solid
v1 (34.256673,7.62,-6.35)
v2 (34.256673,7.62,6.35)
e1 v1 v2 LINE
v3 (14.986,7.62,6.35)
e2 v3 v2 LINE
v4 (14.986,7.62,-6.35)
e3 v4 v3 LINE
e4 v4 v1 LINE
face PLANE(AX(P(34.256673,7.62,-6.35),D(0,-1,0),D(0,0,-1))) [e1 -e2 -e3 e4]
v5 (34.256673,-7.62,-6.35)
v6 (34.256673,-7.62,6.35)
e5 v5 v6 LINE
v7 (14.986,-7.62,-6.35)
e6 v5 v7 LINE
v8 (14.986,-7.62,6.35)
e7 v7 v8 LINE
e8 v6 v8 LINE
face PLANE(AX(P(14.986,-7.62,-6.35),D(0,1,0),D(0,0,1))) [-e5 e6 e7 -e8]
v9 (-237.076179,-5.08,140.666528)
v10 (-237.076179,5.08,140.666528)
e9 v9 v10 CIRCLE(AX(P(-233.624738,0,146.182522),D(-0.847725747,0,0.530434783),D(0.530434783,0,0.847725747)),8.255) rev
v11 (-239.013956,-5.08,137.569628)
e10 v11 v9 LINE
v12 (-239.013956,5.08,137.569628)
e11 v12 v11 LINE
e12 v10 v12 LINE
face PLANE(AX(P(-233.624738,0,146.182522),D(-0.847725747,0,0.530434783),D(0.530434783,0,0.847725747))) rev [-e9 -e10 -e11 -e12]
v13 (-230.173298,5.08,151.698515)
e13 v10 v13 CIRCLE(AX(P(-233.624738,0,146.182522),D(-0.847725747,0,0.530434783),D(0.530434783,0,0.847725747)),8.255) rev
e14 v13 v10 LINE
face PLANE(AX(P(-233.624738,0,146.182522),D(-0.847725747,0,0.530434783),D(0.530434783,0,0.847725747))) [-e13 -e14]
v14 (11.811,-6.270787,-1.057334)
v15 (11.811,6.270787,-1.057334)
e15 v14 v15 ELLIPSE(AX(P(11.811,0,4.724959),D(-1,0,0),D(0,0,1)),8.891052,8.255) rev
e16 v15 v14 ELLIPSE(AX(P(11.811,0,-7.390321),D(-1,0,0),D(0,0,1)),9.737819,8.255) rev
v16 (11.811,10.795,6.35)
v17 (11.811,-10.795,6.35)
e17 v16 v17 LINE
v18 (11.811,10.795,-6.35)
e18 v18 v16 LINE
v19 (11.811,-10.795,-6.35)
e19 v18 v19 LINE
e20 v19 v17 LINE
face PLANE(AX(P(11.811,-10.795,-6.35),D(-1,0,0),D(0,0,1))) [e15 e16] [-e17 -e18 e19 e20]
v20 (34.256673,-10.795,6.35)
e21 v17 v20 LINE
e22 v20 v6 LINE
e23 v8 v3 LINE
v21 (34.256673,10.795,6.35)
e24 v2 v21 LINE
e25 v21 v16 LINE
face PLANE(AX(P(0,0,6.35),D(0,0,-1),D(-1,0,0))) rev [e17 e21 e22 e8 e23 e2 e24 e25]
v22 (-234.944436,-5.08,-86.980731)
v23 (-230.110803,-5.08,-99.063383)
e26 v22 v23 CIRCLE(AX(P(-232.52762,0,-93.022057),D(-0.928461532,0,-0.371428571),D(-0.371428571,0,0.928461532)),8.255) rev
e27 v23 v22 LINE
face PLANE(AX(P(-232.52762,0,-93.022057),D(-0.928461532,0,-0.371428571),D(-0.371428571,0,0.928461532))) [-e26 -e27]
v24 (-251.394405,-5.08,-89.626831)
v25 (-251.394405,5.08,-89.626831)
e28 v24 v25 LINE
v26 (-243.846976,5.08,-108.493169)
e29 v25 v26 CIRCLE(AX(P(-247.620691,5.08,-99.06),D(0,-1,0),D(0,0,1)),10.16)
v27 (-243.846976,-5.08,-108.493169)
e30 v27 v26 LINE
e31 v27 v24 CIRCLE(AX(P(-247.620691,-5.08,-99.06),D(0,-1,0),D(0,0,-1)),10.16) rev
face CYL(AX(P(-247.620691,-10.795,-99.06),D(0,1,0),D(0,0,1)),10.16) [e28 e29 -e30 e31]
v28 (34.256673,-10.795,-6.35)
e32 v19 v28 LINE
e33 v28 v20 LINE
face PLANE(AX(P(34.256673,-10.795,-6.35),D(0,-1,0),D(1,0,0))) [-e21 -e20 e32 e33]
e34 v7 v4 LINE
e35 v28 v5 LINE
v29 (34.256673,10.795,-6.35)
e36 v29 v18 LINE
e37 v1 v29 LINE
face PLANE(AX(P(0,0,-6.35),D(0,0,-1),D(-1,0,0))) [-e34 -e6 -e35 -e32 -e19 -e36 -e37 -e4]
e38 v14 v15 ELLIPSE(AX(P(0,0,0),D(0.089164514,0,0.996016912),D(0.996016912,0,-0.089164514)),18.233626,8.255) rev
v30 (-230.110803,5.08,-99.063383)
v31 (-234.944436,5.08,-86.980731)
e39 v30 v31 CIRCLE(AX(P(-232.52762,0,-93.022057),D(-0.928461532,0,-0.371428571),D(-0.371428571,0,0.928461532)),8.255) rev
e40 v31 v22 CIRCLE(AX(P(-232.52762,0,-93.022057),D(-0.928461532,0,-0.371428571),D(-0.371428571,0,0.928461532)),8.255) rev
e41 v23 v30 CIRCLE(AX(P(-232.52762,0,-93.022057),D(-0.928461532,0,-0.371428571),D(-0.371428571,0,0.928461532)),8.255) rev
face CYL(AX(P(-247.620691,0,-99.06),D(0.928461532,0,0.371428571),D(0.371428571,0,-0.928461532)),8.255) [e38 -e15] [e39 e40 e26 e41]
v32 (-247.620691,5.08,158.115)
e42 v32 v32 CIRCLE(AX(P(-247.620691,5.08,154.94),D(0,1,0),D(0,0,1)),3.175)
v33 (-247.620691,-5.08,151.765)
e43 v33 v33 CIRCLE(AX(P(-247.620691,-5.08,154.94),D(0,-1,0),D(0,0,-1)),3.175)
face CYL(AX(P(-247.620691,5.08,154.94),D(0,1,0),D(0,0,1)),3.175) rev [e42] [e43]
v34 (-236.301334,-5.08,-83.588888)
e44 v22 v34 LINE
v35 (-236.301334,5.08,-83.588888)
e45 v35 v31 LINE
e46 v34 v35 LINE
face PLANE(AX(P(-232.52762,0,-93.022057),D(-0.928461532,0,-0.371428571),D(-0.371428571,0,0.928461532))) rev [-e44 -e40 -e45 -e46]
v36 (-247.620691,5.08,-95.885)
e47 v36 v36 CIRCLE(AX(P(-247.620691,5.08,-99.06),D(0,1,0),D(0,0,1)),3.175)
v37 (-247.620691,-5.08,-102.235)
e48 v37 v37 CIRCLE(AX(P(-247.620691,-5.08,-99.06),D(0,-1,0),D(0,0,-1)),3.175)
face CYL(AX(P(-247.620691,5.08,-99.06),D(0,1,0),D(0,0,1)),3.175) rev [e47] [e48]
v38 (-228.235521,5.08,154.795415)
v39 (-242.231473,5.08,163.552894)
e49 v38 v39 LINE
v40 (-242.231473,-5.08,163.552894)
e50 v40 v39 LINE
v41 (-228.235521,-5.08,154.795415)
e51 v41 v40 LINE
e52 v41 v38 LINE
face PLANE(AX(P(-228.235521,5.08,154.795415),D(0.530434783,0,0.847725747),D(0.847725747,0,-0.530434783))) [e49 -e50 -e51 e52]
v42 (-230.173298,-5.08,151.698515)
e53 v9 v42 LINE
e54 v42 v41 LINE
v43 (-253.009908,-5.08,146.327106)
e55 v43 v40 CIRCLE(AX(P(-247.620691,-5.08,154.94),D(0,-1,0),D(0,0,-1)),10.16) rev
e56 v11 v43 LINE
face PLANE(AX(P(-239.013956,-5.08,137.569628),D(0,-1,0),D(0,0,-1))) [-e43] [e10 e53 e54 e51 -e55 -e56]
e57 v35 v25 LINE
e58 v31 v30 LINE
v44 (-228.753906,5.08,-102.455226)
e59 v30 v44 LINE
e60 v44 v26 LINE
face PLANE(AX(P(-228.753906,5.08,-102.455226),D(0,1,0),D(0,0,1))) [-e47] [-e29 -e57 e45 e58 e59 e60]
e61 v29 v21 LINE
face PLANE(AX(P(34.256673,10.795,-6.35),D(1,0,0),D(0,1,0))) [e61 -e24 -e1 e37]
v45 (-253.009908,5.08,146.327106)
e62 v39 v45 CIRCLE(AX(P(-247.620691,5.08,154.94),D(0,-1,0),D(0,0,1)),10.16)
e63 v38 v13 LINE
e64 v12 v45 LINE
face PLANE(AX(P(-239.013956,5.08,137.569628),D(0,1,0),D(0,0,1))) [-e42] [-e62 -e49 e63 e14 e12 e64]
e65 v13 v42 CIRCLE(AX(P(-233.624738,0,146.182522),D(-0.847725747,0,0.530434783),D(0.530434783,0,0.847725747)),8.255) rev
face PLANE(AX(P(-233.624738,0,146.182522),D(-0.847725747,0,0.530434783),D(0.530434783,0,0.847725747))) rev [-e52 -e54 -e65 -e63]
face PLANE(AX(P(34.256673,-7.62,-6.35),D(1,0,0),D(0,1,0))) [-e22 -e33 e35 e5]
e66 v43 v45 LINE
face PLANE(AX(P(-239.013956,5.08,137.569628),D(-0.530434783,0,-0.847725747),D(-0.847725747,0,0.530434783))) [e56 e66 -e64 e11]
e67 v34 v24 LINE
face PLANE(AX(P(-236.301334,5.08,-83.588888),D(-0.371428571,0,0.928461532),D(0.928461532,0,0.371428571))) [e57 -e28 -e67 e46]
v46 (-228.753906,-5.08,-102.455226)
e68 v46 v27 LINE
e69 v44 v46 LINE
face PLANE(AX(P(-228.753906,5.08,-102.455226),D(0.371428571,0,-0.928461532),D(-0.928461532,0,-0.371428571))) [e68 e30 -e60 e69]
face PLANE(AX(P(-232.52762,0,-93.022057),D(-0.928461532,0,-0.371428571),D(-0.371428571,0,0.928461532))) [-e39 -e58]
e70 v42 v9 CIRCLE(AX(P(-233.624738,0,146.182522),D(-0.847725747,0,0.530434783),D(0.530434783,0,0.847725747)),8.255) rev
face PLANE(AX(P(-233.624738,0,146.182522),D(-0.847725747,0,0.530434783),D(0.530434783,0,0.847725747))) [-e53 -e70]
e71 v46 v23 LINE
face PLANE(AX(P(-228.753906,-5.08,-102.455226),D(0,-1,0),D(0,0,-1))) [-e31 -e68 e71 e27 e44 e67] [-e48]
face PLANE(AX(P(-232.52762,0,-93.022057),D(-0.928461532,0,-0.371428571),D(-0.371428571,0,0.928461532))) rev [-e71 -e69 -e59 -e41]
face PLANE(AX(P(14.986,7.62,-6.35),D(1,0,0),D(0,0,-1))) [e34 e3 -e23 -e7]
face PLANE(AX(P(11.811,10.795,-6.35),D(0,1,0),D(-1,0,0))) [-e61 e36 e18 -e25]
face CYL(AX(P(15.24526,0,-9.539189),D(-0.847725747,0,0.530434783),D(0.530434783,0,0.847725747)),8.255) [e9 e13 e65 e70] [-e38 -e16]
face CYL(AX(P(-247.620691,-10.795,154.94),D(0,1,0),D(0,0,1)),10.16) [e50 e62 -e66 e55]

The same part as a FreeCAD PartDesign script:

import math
import FreeCAD as App
import Part
import Sketcher
from FreeCAD import Vector
Q = App.Units.Quantity

doc = App.newDocument("Part")
body = doc.addObject("PartDesign::Body", "Body")

# Sketch on an angled plane
sketch1 = doc.addObject("Sketcher::SketchObject", "Sketch")
body.addObject(sketch1)
sketch1.Placement = App.Placement(Vector(-247.620691, 0, 154.94), App.Rotation(Vector(0.530434783, 0, 0.847725747), Vector(0, 1.000000001, 0), Vector(-0.847725747, 0, 0.530434783), "ZXY"))
sketch1.addGeometry(Part.Circle(Vector(0, 0, 0), Vector(0, 0, 1), 8), False)
sketch1.addConstraint([
    Sketcher.Constraint("Coincident", 0, 3, -1, 1),
    Sketcher.Constraint("Diameter", 0, Q("0.65 in")),
])

# Sketch on XZ plane
sketch2 = doc.addObject("Sketcher::SketchObject", "Sketch001")
body.addObject(sketch2)
sketch2.AttachmentSupport = (doc.XZ_Plane, [""])
sketch2.MapMode = "FlatFace"
sketch2.addGeometry([
    Part.LineSegment(Vector(-248, -99, 0), Vector(0, 0, 0)),
    Part.LineSegment(Vector(0, 0, 0), Vector(-248, 155, 0)),
], False)
sketch2.addConstraint([
    Sketcher.Constraint("Coincident", 0, 2, 1, 1),
    Sketcher.Constraint("Coincident", 0, 2, -1, 1),
    Sketcher.Constraint("Vertical", 0, 1, 1, 2),
    Sketcher.Constraint("DistanceY", 0, 1, 1, 2, Q("10 in")),
    Sketcher.Constraint("Distance", 0, Q("10.5 in")),
    Sketcher.Constraint("Distance", 1, Q("11.5 in")),
])
doc.recompute()

additivepipe = doc.addObject("PartDesign::AdditivePipe", "AdditivePipe")
body.addObject(additivepipe)
additivepipe.Profile = sketch1
additivepipe.Spine = (sketch2, ["Edge1", "Edge2"])
additivepipe.Transition = "Right corner"

# Sketch on XY plane
sketch3 = doc.addObject("Sketcher::SketchObject", "Sketch002")
body.addObject(sketch3)
sketch3.AttachmentSupport = (doc.XY_Plane, [""])
sketch3.MapMode = "FlatFace"
sketch3.addGeometry([
    Part.LineSegment(Vector(11.8, -10.8, 0), Vector(34.3, -10.8, 0)),  # 0
    Part.LineSegment(Vector(34.3, -10.8, 0), Vector(34.3, -7.6, 0)),  # 1
    Part.LineSegment(Vector(34.3, -7.6, 0), Vector(15, -7.6, 0)),  # 2
    Part.LineSegment(Vector(15, -7.6, 0), Vector(15, 7.6, 0)),  # 3
    Part.LineSegment(Vector(15, 7.6, 0), Vector(34.3, 7.6, 0)),  # 4
    Part.LineSegment(Vector(34.3, 7.6, 0), Vector(34.3, 10.8, 0)),  # 5
    Part.LineSegment(Vector(34.3, 10.8, 0), Vector(11.8, 10.8, 0)),  # 6
    Part.LineSegment(Vector(11.8, 10.8, 0), Vector(11.8, -10.8, 0)),  # 7
], False)
sketch3.addConstraint([
    Sketcher.Constraint("Coincident", 0, 2, 1, 1),
    Sketcher.Constraint("Coincident", 1, 2, 2, 1),
    Sketcher.Constraint("Coincident", 2, 2, 3, 1),
    Sketcher.Constraint("Coincident", 3, 2, 4, 1),
    Sketcher.Constraint("Coincident", 4, 2, 5, 1),
    Sketcher.Constraint("Coincident", 5, 2, 6, 1),
    Sketcher.Constraint("Coincident", 6, 2, 7, 1),
    Sketcher.Constraint("Coincident", 7, 2, 0, 1),
    Sketcher.Constraint("Horizontal", 0),
    Sketcher.Constraint("Vertical", 1),
    Sketcher.Constraint("Horizontal", 2),
    Sketcher.Constraint("Vertical", 3),
    Sketcher.Constraint("Horizontal", 4),
    Sketcher.Constraint("Vertical", 5),
    Sketcher.Constraint("Horizontal", 6),
    Sketcher.Constraint("Vertical", 7),
    Sketcher.Constraint("Symmetric", 1, 2, 4, 2, -1),
    Sketcher.Constraint("Equal", 1, 5),
    Sketcher.Constraint("DistanceY", 3, 1, 3, 2, Q("0.6 in")),
    Sketcher.Constraint("DistanceY", 7, 2, 7, 1, Q("0.85 in")),
    Sketcher.Constraint("DistanceX", -1, 1, 2, 2, Q("0.59 in")),
    Sketcher.Constraint("DistanceX", -1, 1, 6, 2, Q("0.465 in")),
    Sketcher.Constraint("DistanceX", 0, 1, 0, 2, Q("22.445673 mm")),
])
pad1 = doc.addObject("PartDesign::Pad", "Pad")
body.addObject(pad1)
pad1.Profile = sketch3
pad1.Type = "TwoLengths"
pad1.Length = Q("0.25 in")
pad1.Length2 = Q("0.25 in")

# Sketch on an angled plane
sketch4 = doc.addObject("Sketcher::SketchObject", "Sketch003")
body.addObject(sketch4)
sketch4.Placement = App.Placement(Vector(-247.620691, 0, 154.94), App.Rotation(Vector(0.530434783, 0, 0.847725747), Vector(0, 1.000000001, 0), Vector(-0.847725747, 0, 0.530434783), "ZXY"))
sketch4.addGeometry([
    Part.LineSegment(Vector(-10, 5, 0), Vector(-10, -5, 0)),
    Part.LineSegment(Vector(-10, -5, 0), Vector(10, -5, 0)),
    Part.LineSegment(Vector(10, -5, 0), Vector(10, 5, 0)),
    Part.LineSegment(Vector(10, 5, 0), Vector(-10, 5, 0)),
], False)
sketch4.addConstraint([
    Sketcher.Constraint("Coincident", 0, 2, 1, 1),
    Sketcher.Constraint("Coincident", 1, 2, 2, 1),
    Sketcher.Constraint("Coincident", 2, 2, 3, 1),
    Sketcher.Constraint("Coincident", 3, 2, 0, 1),
    Sketcher.Constraint("Vertical", 0),
    Sketcher.Constraint("Horizontal", 1),
    Sketcher.Constraint("Vertical", 2),
    Sketcher.Constraint("Horizontal", 3),
    Sketcher.Constraint("Symmetric", 0, 2, 2, 2, -1, 1),
    Sketcher.Constraint("DistanceX", 1, 1, 1, 2, Q("0.8 in")),
    Sketcher.Constraint("DistanceY", 0, 2, 0, 1, Q("0.4 in")),
])
pad2 = doc.addObject("PartDesign::Pad", "Pad001")
body.addObject(pad2)
pad2.Profile = sketch4
pad2.Type = "TwoLengths"
pad2.Length = Q("0.4 in")
pad2.Length2 = Q("0.65 in")

# Sketch on an angled plane
sketch5 = doc.addObject("Sketcher::SketchObject", "Sketch004")
body.addObject(sketch5)
sketch5.Placement = App.Placement(Vector(-247.620691, 0, -99.06), App.Rotation(Vector(-0.371428571, 0, 0.928461532), Vector(0, 1, 0), Vector(-0.928461532, 0, -0.371428571), "ZXY"))
sketch5.addGeometry([
    Part.LineSegment(Vector(-10, 5, 0), Vector(-10, -5, 0)),
    Part.LineSegment(Vector(-10, -5, 0), Vector(10, -5, 0)),
    Part.LineSegment(Vector(10, -5, 0), Vector(10, 5, 0)),
    Part.LineSegment(Vector(10, 5, 0), Vector(-10, 5, 0)),
], False)
sketch5.addConstraint([
    Sketcher.Constraint("Coincident", 0, 2, 1, 1),
    Sketcher.Constraint("Coincident", 1, 2, 2, 1),
    Sketcher.Constraint("Coincident", 2, 2, 3, 1),
    Sketcher.Constraint("Coincident", 3, 2, 0, 1),
    Sketcher.Constraint("Vertical", 0),
    Sketcher.Constraint("Horizontal", 1),
    Sketcher.Constraint("Vertical", 2),
    Sketcher.Constraint("Horizontal", 3),
    Sketcher.Constraint("Symmetric", 0, 2, 2, 2, -1, 1),
    Sketcher.Constraint("DistanceX", 1, 1, 1, 2, Q("0.8 in")),
    Sketcher.Constraint("DistanceY", 0, 2, 0, 1, Q("0.4 in")),
])
pad3 = doc.addObject("PartDesign::Pad", "Pad002")
body.addObject(pad3)
pad3.Profile = sketch5
pad3.Type = "TwoLengths"
pad3.Length = Q("0.4 in")
pad3.Length2 = Q("0.64 in")

# Sketch on XZ plane
sketch6 = doc.addObject("Sketcher::SketchObject", "Sketch005")
body.addObject(sketch6)
sketch6.AttachmentSupport = (doc.XZ_Plane, [""])
sketch6.MapMode = "FlatFace"
sketch6.AttachmentOffset = App.Placement(Vector(0, 0, -0.2 * 25.4), App.Rotation())
sketch6.addGeometry([
    Part.LineSegment(Vector(-257, -103, 0), Vector(-261, -93, 0)),
    Part.LineSegment(Vector(-261, -93, 0), Vector(-251, -90, 0)),
    Part.ArcOfCircle(Part.Circle(Vector(-248, -99, 0), Vector(0, 0, 1), 10), math.radians(112), math.radians(202)),
], False)
sketch6.addConstraint([
    Sketcher.Constraint("Coincident", 0, 2, 1, 1),
    Sketcher.Constraint("Tangent", 1, 2, 2, 1),
    Sketcher.Constraint("Tangent", 2, 2, 0, 1),
    Sketcher.Constraint("Perpendicular", 0, 1),
    Sketcher.Constraint("Radius", 2, Q("0.4 in")),
    Sketcher.Constraint("DistanceY", 2, 3, -1, 1, Q("3.9 in")),
    Sketcher.Constraint("DistanceX", 2, 3, -1, 1, Q("247.620691 mm")),
    Sketcher.Constraint("DistanceY", 1, 2, -1, 1, Q("89.626831 mm")),
])
pocket1 = doc.addObject("PartDesign::Pocket", "Pocket")
body.addObject(pocket1)
pocket1.Profile = sketch6
pocket1.Type = "ThroughAll"
pocket1.Reversed = True
doc.recompute()

datumplane = doc.addObject("PartDesign::Plane", "DatumPlane")
body.addObject(datumplane)
datumplane.Placement = App.Placement(Vector(0, 0, 0), App.Rotation(Vector(-0.928461532, 0, -0.371428571), Vector(0, -1, 0), Vector(-0.371428571, 0, 0.928461532), "ZXY"))
mirrored = doc.addObject("PartDesign::Mirrored", "Mirrored")
body.addObject(mirrored)
mirrored.Originals = [pocket1]
mirrored.MirrorPlane = (datumplane, [""])
body.Tip = mirrored

# Sketch on XZ plane
sketch7 = doc.addObject("Sketcher::SketchObject", "Sketch006")
body.addObject(sketch7)
sketch7.AttachmentSupport = (doc.XZ_Plane, [""])
sketch7.MapMode = "FlatFace"
sketch7.AttachmentOffset = App.Placement(Vector(0, 0, -0.2 * 25.4), App.Rotation())
sketch7.addGeometry([
    Part.LineSegment(Vector(-251, 169, 0), Vector(-242, 164, 0)),
    Part.ArcOfCircle(Part.Circle(Vector(-248, 155, 0), Vector(0, 0, 1), 10), math.radians(58), math.radians(148)),
    Part.LineSegment(Vector(-256, 160, 0), Vector(-251, 169, 0)),
], False)
sketch7.addConstraint([
    Sketcher.Constraint("Tangent", 0, 2, 1, 1),
    Sketcher.Constraint("Tangent", 1, 2, 2, 1),
    Sketcher.Constraint("Coincident", 2, 2, 0, 1),
    Sketcher.Constraint("Perpendicular", 0, 2),
    Sketcher.Constraint("Radius", 1, Q("0.4 in")),
    Sketcher.Constraint("DistanceY", -1, 1, 1, 3, Q("6.1 in")),
    Sketcher.Constraint("DistanceX", 1, 3, -1, 1, Q("247.620691 mm")),
    Sketcher.Constraint("DistanceY", -1, 1, 2, 2, Q("168.942111 mm")),
])
pocket2 = doc.addObject("PartDesign::Pocket", "Pocket001")
body.addObject(pocket2)
pocket2.Profile = sketch7
pocket2.Type = "ThroughAll"
pocket2.Reversed = True
doc.recompute()

datumplane2 = doc.addObject("PartDesign::Plane", "DatumPlane001")
body.addObject(datumplane2)
datumplane2.Placement = App.Placement(Vector(0, 0, 0), App.Rotation(Vector(-0.847725747, 0, 0.530434783), Vector(0, -1.000000001, 0), Vector(0.530434783, 0, 0.847725747), "ZXY"))
mirrored2 = doc.addObject("PartDesign::Mirrored", "Mirrored001")
body.addObject(mirrored2)
mirrored2.Originals = [pocket2]
mirrored2.MirrorPlane = (datumplane2, [""])
body.Tip = mirrored2

# Sketch on an angled plane
sketch8 = doc.addObject("Sketcher::SketchObject", "Sketch007")
body.addObject(sketch8)
sketch8.Placement = App.Placement(Vector(-247.620691, 0, 154.94), App.Rotation(Vector(0.530434783, 0, 0.847725747), Vector(0, 1.000000001, 0), Vector(-0.847725747, 0, 0.530434783), "ZXY"))
sketch8.addGeometry([
    Part.LineSegment(Vector(7, -5, 0), Vector(-7, -5, 0)),
    Part.ArcOfCircle(Part.Circle(Vector(0, 0, 0), Vector(0, 0, 1), 8), math.radians(-142), math.radians(-38)),
    Part.LineSegment(Vector(-7, 5, 0), Vector(7, 5, 0)),
    Part.ArcOfCircle(Part.Circle(Vector(0, 0, 0), Vector(0, 0, 1), 8), math.radians(38), math.radians(142)),
], False)
sketch8.addConstraint([
    Sketcher.Constraint("Coincident", 0, 1, 1, 2),
    Sketcher.Constraint("Coincident", 1, 1, 0, 2),
    Sketcher.Constraint("Coincident", 2, 1, 3, 2),
    Sketcher.Constraint("Coincident", 3, 1, 2, 2),
    Sketcher.Constraint("Horizontal", 0),
    Sketcher.Constraint("Horizontal", 2),
    Sketcher.Constraint("Coincident", 1, 3, -1, 1),
    Sketcher.Constraint("Coincident", 3, 3, -1, 1),
    Sketcher.Constraint("Equal", 1, 3),
    Sketcher.Constraint("Vertical", 1, 1, 2, 1),
    Sketcher.Constraint("Radius", 1, Q("0.325 in")),
    Sketcher.Constraint("DistanceY", 0, 1, -1, 1, Q("0.2 in")),
])
pocket3 = doc.addObject("PartDesign::Pocket", "Pocket002")
body.addObject(pocket3)
pocket3.Profile = sketch8
pocket3.Length = Q("0.65 in")

# Sketch on an angled plane
sketch9 = doc.addObject("Sketcher::SketchObject", "Sketch008")
body.addObject(sketch9)
sketch9.Placement = App.Placement(Vector(-232.52762, 0, -93.022057), App.Rotation(Vector(-0.371428571, 0, 0.928461532), Vector(0, 1, 0), Vector(-0.928461532, 0, -0.371428571), "ZXY"))
sketch9.addGeometry([
    Part.LineSegment(Vector(7, -5, 0), Vector(-7, -5, 0)),
    Part.ArcOfCircle(Part.Circle(Vector(0, 0, 0), Vector(0, 0, 1), 8), math.radians(-142), math.radians(-38)),
    Part.LineSegment(Vector(-7, 5, 0), Vector(7, 5, 0)),
    Part.ArcOfCircle(Part.Circle(Vector(0, 0, 0), Vector(0, 0, 1), 8), math.radians(38), math.radians(142)),
], False)
sketch9.addConstraint([
    Sketcher.Constraint("Coincident", 0, 1, 1, 2),
    Sketcher.Constraint("Coincident", 1, 1, 0, 2),
    Sketcher.Constraint("Coincident", 2, 1, 3, 2),
    Sketcher.Constraint("Coincident", 3, 1, 2, 2),
    Sketcher.Constraint("Horizontal", 0),
    Sketcher.Constraint("Horizontal", 2),
    Sketcher.Constraint("Coincident", 1, 3, -1, 1),
    Sketcher.Constraint("Coincident", 3, 3, -1, 1),
    Sketcher.Constraint("Equal", 1, 3),
    Sketcher.Constraint("Vertical", 1, 1, 2, 1),
    Sketcher.Constraint("Radius", 1, Q("0.325 in")),
    Sketcher.Constraint("DistanceY", 0, 1, -1, 1, Q("0.2 in")),
])
pocket4 = doc.addObject("PartDesign::Pocket", "Pocket003")
body.addObject(pocket4)
pocket4.Profile = sketch9
pocket4.Length = Q("0.64 in")
pocket4.Reversed = True

# Sketch on XY plane
sketch10 = doc.addObject("Sketcher::SketchObject", "Sketch009")
body.addObject(sketch10)
sketch10.AttachmentSupport = (doc.XY_Plane, [""])
sketch10.MapMode = "FlatFace"
sketch10.AttachmentOffset = App.Placement(Vector(0, 0, 0.25 * 25.4), App.Rotation())
sketch10.addGeometry([
    Part.LineSegment(Vector(14.986, 4.663063, 0), Vector(14.986, -4.663063, 0)),
    Part.BSplineCurve([Vector(14.986, -4.663063, 0), Vector(22.008669, 0, 0), Vector(14.986, 4.663063, 0)], [3, 3], [5.682900603, 6.883470012], False, 2, [1, 0.825174825, 1], False),
], False)
sketch10.addConstraint([
    Sketcher.Constraint("Block", 1),
    Sketcher.Constraint("Coincident", 0, 1, 1, 2),
    Sketcher.Constraint("Coincident", 1, 1, 0, 2),
])
pocket5 = doc.addObject("PartDesign::Pocket", "Pocket004")
body.addObject(pocket5)
pocket5.Profile = sketch10
pocket5.Type = "ThroughAll"

# Sketch on XZ plane
sketch11 = doc.addObject("Sketcher::SketchObject", "Sketch010")
body.addObject(sketch11)
sketch11.AttachmentSupport = (doc.XZ_Plane, [""])
sketch11.MapMode = "FlatFace"
sketch11.AttachmentOffset = App.Placement(Vector(0, 0, -0.2 * 25.4), App.Rotation())
sketch11.addGeometry([
    Part.Circle(Vector(-247.6, -99.1, 0), Vector(0, 0, 1), 3.2),
    Part.Circle(Vector(-247.6, 154.9, 0), Vector(0, 0, 1), 3.2),
], False)
sketch11.addConstraint([
    Sketcher.Constraint("Equal", 0, 1),
    Sketcher.Constraint("Vertical", 0, 3, 1, 3),
    Sketcher.Constraint("Diameter", 0, Q("0.25 in")),
    Sketcher.Constraint("DistanceY", 0, 3, 1, 3, Q("10 in")),
    Sketcher.Constraint("DistanceY", 0, 3, -1, 1, Q("3.9 in")),
    Sketcher.Constraint("DistanceX", 0, 3, -1, 1, Q("247.620691 mm")),
])
doc.recompute()
hole = doc.addObject("PartDesign::Hole", "Hole")
body.addObject(hole)
hole.Profile = sketch11
hole.ThreadType = "None"
hole.Diameter = Q("0.25 in")
hole.DepthType = "Dimension"
hole.Depth = Q("0.75 in")
hole.DrillPoint = "Angled"
hole.DrillPointAngle = 118
hole.Reversed = True

doc.recompute()
